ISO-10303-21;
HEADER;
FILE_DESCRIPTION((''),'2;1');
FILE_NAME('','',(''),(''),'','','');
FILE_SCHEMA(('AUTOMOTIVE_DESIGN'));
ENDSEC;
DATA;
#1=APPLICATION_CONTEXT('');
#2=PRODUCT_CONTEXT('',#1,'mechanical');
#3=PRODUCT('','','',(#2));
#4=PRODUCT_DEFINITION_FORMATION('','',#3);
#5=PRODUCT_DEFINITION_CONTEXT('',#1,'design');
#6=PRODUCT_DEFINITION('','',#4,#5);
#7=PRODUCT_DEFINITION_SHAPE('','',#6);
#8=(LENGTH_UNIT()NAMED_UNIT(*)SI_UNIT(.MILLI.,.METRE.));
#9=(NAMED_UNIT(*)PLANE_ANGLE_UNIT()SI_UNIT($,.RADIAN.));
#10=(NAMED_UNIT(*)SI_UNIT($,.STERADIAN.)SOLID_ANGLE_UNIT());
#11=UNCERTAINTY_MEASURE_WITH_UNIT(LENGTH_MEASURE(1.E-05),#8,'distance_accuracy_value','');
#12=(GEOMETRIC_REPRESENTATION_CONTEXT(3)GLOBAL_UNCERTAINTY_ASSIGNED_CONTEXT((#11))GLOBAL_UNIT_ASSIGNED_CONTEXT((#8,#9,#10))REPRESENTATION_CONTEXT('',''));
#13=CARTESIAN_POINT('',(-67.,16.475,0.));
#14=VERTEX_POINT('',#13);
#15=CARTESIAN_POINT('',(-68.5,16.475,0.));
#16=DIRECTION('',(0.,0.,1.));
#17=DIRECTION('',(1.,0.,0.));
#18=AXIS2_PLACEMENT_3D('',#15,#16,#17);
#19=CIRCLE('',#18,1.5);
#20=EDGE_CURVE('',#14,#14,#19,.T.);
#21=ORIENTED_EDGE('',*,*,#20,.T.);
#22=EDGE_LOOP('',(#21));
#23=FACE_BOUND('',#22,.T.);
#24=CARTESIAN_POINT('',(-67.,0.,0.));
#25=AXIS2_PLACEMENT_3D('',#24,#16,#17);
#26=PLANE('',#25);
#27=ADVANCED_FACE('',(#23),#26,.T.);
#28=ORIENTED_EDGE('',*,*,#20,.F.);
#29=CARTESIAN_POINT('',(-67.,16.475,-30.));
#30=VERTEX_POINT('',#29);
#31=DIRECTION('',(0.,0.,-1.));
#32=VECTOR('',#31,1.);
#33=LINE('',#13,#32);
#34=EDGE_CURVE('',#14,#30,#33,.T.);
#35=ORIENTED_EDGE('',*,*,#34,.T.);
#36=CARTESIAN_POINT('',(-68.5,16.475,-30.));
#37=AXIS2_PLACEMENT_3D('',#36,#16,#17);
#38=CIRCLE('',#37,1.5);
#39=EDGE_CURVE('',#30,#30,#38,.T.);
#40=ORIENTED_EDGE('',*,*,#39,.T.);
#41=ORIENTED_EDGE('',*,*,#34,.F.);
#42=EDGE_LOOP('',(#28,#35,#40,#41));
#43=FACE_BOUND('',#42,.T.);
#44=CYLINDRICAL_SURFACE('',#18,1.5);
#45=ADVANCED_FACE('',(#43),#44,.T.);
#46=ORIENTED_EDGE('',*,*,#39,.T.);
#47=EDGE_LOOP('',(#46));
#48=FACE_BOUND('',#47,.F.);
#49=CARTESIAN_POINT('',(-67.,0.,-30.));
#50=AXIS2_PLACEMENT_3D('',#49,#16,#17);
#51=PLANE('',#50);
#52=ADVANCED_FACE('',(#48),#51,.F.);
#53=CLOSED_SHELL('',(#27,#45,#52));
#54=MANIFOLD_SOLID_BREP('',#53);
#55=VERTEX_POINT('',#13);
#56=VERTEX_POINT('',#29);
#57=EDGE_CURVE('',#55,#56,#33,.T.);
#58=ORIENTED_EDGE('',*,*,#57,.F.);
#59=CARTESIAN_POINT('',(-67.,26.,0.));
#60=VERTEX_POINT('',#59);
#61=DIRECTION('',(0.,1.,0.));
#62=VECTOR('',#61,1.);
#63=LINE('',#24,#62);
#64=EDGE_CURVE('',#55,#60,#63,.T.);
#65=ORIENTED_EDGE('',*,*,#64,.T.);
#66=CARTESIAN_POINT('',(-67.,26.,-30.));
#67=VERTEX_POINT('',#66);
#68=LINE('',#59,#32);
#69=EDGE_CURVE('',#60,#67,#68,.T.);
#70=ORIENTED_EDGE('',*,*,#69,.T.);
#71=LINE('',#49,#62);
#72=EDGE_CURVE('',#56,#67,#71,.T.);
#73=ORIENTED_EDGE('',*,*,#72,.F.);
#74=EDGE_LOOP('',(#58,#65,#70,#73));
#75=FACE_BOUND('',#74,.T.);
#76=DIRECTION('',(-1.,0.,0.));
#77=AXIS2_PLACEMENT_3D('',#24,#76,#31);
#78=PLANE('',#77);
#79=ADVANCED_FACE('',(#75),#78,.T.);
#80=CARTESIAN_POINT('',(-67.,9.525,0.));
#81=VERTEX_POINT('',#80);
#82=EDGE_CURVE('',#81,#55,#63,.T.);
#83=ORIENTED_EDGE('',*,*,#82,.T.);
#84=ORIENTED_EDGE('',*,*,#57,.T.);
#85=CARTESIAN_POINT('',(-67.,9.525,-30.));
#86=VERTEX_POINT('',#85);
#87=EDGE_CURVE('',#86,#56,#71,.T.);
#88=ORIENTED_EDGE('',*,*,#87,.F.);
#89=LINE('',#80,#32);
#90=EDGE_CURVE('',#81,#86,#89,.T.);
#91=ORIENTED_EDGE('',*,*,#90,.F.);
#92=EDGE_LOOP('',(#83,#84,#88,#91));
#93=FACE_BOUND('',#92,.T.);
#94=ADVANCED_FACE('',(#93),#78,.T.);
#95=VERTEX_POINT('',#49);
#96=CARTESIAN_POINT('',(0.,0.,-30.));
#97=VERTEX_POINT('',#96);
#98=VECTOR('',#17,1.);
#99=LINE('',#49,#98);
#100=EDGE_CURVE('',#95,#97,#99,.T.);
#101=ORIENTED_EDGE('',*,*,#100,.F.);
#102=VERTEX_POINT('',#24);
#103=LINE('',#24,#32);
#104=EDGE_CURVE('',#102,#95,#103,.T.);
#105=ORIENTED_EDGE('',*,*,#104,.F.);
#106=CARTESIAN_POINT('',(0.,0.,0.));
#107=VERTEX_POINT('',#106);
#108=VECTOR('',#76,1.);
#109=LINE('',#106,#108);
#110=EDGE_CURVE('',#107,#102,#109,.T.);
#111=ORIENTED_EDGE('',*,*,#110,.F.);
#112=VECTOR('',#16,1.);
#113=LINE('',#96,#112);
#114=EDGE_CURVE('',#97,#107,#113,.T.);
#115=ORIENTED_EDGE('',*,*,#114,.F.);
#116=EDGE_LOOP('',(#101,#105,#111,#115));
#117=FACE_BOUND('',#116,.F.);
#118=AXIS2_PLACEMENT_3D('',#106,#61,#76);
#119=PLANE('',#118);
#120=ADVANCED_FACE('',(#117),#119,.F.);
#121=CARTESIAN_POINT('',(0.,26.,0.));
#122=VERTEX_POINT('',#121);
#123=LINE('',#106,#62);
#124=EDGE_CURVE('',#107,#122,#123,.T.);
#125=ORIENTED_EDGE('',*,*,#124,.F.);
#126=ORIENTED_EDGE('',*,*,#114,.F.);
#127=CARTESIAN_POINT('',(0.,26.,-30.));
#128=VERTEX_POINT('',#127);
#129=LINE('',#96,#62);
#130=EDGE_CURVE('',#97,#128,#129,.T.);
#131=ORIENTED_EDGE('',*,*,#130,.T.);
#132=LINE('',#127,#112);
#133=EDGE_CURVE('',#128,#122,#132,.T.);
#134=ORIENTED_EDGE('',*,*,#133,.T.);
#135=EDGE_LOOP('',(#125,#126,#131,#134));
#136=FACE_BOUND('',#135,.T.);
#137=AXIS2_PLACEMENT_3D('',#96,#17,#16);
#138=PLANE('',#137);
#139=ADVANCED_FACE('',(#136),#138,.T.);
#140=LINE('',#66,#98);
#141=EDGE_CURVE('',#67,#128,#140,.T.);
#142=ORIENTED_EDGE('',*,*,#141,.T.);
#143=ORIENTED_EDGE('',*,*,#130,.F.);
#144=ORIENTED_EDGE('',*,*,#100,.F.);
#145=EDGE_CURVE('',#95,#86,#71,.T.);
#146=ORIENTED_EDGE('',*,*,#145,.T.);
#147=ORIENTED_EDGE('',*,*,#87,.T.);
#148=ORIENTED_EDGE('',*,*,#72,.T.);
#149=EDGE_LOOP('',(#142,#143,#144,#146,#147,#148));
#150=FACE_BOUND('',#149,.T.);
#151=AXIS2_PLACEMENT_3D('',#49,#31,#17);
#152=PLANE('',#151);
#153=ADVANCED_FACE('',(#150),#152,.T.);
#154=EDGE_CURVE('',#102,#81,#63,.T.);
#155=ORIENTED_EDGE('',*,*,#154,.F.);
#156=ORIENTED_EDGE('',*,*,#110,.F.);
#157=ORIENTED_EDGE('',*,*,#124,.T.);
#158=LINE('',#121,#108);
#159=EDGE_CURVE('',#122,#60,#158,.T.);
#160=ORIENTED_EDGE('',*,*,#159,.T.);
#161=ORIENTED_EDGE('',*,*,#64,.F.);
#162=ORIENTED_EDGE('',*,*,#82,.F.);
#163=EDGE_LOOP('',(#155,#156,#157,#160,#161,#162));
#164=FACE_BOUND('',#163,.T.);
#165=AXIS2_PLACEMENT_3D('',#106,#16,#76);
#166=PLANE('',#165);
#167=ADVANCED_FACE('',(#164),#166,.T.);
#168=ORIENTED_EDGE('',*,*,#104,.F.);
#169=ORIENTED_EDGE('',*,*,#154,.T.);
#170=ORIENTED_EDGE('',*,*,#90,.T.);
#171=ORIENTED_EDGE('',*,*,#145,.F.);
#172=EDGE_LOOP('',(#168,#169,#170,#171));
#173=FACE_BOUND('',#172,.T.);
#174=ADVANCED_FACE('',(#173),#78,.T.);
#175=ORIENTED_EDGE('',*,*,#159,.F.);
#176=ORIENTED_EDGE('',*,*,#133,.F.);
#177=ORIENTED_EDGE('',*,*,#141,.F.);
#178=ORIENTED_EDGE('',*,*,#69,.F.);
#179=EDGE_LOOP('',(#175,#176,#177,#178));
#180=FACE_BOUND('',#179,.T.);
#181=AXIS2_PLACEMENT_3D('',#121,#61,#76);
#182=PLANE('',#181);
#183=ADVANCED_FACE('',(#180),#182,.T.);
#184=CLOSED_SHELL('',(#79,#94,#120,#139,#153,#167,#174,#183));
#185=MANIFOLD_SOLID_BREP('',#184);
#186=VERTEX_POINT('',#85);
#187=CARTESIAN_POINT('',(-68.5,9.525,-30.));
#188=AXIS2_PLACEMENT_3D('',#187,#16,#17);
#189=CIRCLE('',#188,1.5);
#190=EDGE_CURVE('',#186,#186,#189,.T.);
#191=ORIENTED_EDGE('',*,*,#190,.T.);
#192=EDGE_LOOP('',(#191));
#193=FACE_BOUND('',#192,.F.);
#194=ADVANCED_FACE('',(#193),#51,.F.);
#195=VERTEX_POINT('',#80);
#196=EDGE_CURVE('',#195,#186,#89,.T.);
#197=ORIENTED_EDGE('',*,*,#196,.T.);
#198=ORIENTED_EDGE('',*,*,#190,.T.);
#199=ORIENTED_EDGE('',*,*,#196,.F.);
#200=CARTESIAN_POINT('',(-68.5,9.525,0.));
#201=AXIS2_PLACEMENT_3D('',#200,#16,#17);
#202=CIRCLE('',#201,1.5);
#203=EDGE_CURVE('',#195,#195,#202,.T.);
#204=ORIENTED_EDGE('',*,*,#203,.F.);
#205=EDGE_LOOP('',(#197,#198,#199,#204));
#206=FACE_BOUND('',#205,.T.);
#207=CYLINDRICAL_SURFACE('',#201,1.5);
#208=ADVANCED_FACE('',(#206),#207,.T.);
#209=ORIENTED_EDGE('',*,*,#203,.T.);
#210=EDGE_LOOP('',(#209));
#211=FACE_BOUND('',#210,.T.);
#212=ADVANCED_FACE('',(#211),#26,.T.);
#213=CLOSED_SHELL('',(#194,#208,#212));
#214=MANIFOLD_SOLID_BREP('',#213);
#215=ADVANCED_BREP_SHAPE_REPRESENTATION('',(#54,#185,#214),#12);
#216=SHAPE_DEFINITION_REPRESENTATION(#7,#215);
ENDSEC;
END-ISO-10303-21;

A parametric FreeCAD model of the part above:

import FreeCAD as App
import Part
import Sketcher

V = App.Vector

doc = App.newDocument("Part")
body = doc.addObject("PartDesign::Body", "Body")
body.AllowCompound = True

# Sketch on XZ plane
sketch1 = body.newObject("Sketcher::SketchObject", "Sketch")
sketch1.AttachmentSupport = (doc.getObject("XZ_Plane"), [""])
sketch1.MapMode = "FlatFace"
sketch1.addGeometry([
    Part.LineSegment(V(-67, 0, 0), V(0, 0, 0)),
    Part.LineSegment(V(0, 0, 0), V(0, -30, 0)),
    Part.LineSegment(V(0, -30, 0), V(-67, -30, 0)),
    Part.LineSegment(V(-67, -30, 0), V(-67, 0, 0)),
], False)
sketch1.addConstraint([
    Sketcher.Constraint("Coincident", 0, 2, 1, 1),
    Sketcher.Constraint("Coincident", 1, 2, 2, 1),
    Sketcher.Constraint("Coincident", 2, 2, 3, 1),
    Sketcher.Constraint("Coincident", 3, 2, 0, 1),
    Sketcher.Constraint("Horizontal", 0),
    Sketcher.Constraint("Vertical", 1),
    Sketcher.Constraint("Horizontal", 2),
    Sketcher.Constraint("Vertical", 3),
    Sketcher.Constraint("Coincident", 0, 2, -1, 1),
    Sketcher.Constraint("DistanceX", 0, 1, 0, 2, 67.0),
    Sketcher.Constraint("DistanceY", 1, 2, 1, 1, 30.0),
])
pad1 = body.newObject("PartDesign::Pad", "Pad")
pad1.Profile = sketch1
pad1.Length = 26
pad1.Reversed = True

# Sketch on XY plane
sketch2 = body.newObject("Sketcher::SketchObject", "Sketch001")
sketch2.AttachmentSupport = (doc.getObject("XY_Plane"), [""])
sketch2.MapMode = "FlatFace"
sketch2.addGeometry([
    Part.Circle(V(-68.5, 16.475, 0), V(0, 0, 1), 1.5),
    Part.Circle(V(-68.5, 9.525, 0), V(0, 0, 1), 1.5),
], False)
sketch2.addConstraint([
    Sketcher.Constraint("Equal", 0, 1),
    Sketcher.Constraint("Vertical", 0, 3, 1, 3),
    Sketcher.Constraint("Diameter", 0, 3.0),
    Sketcher.Constraint("DistanceY", -1, 1, 1, 3, 9.525),
    Sketcher.Constraint("DistanceX", 0, 3, -1, 1, 68.5),
    Sketcher.Constraint("DistanceY", 1, 3, 0, 3, 6.95),
])
pad2 = body.newObject("PartDesign::Pad", "Pad001")
pad2.Profile = sketch2
pad2.Length = 30
pad2.Reversed = True

doc.recompute()
